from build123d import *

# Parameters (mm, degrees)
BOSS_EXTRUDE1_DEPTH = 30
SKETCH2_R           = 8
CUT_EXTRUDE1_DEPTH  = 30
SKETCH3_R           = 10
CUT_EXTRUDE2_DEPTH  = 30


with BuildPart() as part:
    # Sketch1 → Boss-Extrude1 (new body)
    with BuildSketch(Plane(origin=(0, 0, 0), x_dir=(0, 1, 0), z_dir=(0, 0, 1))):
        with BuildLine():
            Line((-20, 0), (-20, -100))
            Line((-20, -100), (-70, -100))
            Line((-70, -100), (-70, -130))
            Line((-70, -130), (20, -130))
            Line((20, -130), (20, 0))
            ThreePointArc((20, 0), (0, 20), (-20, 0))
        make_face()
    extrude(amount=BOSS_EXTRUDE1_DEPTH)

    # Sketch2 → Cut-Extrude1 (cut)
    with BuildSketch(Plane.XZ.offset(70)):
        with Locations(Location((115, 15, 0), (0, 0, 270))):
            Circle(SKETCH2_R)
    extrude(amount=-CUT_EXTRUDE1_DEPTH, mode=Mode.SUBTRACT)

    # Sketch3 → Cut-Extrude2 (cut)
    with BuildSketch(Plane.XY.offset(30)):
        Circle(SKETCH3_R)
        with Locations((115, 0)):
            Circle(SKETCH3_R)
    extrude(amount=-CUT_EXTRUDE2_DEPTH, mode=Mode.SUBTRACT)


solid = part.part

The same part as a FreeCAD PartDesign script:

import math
import FreeCAD as App
import Part
import Sketcher

doc = App.newDocument("Part")
params = doc.addObject("Spreadsheet::Sheet", "Params")
for row, (alias, value) in enumerate([
    ("sketch1_radius", "20 mm"),
    ("sketch1_width", "100 mm"),
    ("sketch1_width2", "30 mm"),
    ("sketch1_height", "50 mm"),
    ("pad1_length", "30 mm"),
    ("sketch2_diameter", "16 mm"),
    ("pocket1_length", "30 mm"),
    ("sketch3_diameter", "20 mm"),
    ("pocket2_length", "30 mm"),
], start=1):
    params.set(f"A{row}", alias)
    params.set(f"B{row}", "=" + value)
    params.setAlias(f"B{row}", alias)

body = doc.addObject("PartDesign::Body", "Body")

# Sketch on XY plane
sketch1 = doc.addObject("Sketcher::SketchObject", "Sketch")
body.addObject(sketch1)
sketch1.AttachmentSupport = (doc.XY_Plane, [""])
sketch1.MapMode = "FlatFace"
sketch1.addGeometry([
    Part.LineSegment(App.Vector(0, -20, 0), App.Vector(100, -20, 0)),  # 0
    Part.LineSegment(App.Vector(100, -20, 0), App.Vector(100, -70, 0)),  # 1
    Part.LineSegment(App.Vector(100, -70, 0), App.Vector(130, -70, 0)),  # 2
    Part.LineSegment(App.Vector(130, -70, 0), App.Vector(130, 20, 0)),  # 3
    Part.LineSegment(App.Vector(130, 20, 0), App.Vector(0, 20, 0)),  # 4
    Part.ArcOfCircle(Part.Circle(App.Vector(0, 0, 0), App.Vector(0, 0, 1), 20), math.radians(90), math.radians(270)),  # 5
], False)
sketch1.addConstraint([
    Sketcher.Constraint("Coincident", 0, 2, 1, 1),
    Sketcher.Constraint("Coincident", 1, 2, 2, 1),
    Sketcher.Constraint("Coincident", 2, 2, 3, 1),
    Sketcher.Constraint("Coincident", 3, 2, 4, 1),
    Sketcher.Constraint("Tangent", 4, 2, 5, 1),
    Sketcher.Constraint("Tangent", 5, 2, 0, 1),
    Sketcher.Constraint("Horizontal", 0),
    Sketcher.Constraint("Vertical", 1),
    Sketcher.Constraint("Horizontal", 2),
    Sketcher.Constraint("Vertical", 3),
    Sketcher.Constraint("Horizontal", 4),
    Sketcher.Constraint("Coincident", 5, 3, -1, 1),
    Sketcher.Constraint("Radius", 5, 20.0),
    Sketcher.Constraint("DistanceX", 0, 1, 0, 2, 100.0),
    Sketcher.Constraint("DistanceX", 2, 1, 2, 2, 30.0),
    Sketcher.Constraint("DistanceY", 1, 2, 1, 1, 50.0),
])
sketch1.setExpression("Constraints[12]", "Params.sketch1_radius")
sketch1.setExpression("Constraints[13]", "Params.sketch1_width")
sketch1.setExpression("Constraints[14]", "Params.sketch1_width2")
sketch1.setExpression("Constraints[15]", "Params.sketch1_height")
pad1 = doc.addObject("PartDesign::Pad", "Pad")
body.addObject(pad1)
pad1.Profile = sketch1
pad1.setExpression("Length", "Params.pad1_length")

# Sketch on XZ plane
sketch2 = doc.addObject("Sketcher::SketchObject", "Sketch001")
body.addObject(sketch2)
sketch2.AttachmentSupport = (doc.XZ_Plane, [""])
sketch2.MapMode = "FlatFace"
sketch2.AttachmentOffset = App.Placement(App.Vector(0, 0, 70), App.Rotation())
sketch2.addGeometry(Part.Circle(App.Vector(115, 15, 0), App.Vector(0, 0, 1), 8), False)
sketch2.addConstraint([
    Sketcher.Constraint("Diameter", 0, 16.0),
    Sketcher.Constraint("DistanceX", -1, 1, 0, 3, 115.0),
    Sketcher.Constraint("DistanceY", -1, 1, 0, 3, 15.0),
])
sketch2.setExpression("Constraints[0]", "Params.sketch2_diameter")
pocket1 = doc.addObject("PartDesign::Pocket", "Pocket")
body.addObject(pocket1)
pocket1.Profile = sketch2
pocket1.setExpression("Length", "Params.pocket1_length")

# Sketch on XY plane
sketch3 = doc.addObject("Sketcher::SketchObject", "Sketch002")
body.addObject(sketch3)
sketch3.AttachmentSupport = (doc.XY_Plane, [""])
sketch3.MapMode = "FlatFace"
sketch3.AttachmentOffset = App.Placement(App.Vector(0, 0, 30), App.Rotation())
sketch3.addGeometry([
    Part.Circle(App.Vector(0, 0, 0), App.Vector(0, 0, 1), 10),
    Part.Circle(App.Vector(115, 0, 0), App.Vector(0, 0, 1), 10),
], False)
sketch3.addConstraint([
    Sketcher.Constraint("Coincident", 0, 3, -1, 1),
    Sketcher.Constraint("Equal", 0, 1),
    Sketcher.Constraint("PointOnObject", 1, 3, -1),
    Sketcher.Constraint("Diameter", 0, 20.0),
    Sketcher.Constraint("DistanceX", -1, 1, 1, 3, 115.0),
])
sketch3.setExpression("Constraints[3]", "Params.sketch3_diameter")
pocket2 = doc.addObject("PartDesign::Pocket", "Pocket001")
body.addObject(pocket2)
pocket2.Profile = sketch3
pocket2.setExpression("Length", "Params.pocket2_length")

doc.recompute()
